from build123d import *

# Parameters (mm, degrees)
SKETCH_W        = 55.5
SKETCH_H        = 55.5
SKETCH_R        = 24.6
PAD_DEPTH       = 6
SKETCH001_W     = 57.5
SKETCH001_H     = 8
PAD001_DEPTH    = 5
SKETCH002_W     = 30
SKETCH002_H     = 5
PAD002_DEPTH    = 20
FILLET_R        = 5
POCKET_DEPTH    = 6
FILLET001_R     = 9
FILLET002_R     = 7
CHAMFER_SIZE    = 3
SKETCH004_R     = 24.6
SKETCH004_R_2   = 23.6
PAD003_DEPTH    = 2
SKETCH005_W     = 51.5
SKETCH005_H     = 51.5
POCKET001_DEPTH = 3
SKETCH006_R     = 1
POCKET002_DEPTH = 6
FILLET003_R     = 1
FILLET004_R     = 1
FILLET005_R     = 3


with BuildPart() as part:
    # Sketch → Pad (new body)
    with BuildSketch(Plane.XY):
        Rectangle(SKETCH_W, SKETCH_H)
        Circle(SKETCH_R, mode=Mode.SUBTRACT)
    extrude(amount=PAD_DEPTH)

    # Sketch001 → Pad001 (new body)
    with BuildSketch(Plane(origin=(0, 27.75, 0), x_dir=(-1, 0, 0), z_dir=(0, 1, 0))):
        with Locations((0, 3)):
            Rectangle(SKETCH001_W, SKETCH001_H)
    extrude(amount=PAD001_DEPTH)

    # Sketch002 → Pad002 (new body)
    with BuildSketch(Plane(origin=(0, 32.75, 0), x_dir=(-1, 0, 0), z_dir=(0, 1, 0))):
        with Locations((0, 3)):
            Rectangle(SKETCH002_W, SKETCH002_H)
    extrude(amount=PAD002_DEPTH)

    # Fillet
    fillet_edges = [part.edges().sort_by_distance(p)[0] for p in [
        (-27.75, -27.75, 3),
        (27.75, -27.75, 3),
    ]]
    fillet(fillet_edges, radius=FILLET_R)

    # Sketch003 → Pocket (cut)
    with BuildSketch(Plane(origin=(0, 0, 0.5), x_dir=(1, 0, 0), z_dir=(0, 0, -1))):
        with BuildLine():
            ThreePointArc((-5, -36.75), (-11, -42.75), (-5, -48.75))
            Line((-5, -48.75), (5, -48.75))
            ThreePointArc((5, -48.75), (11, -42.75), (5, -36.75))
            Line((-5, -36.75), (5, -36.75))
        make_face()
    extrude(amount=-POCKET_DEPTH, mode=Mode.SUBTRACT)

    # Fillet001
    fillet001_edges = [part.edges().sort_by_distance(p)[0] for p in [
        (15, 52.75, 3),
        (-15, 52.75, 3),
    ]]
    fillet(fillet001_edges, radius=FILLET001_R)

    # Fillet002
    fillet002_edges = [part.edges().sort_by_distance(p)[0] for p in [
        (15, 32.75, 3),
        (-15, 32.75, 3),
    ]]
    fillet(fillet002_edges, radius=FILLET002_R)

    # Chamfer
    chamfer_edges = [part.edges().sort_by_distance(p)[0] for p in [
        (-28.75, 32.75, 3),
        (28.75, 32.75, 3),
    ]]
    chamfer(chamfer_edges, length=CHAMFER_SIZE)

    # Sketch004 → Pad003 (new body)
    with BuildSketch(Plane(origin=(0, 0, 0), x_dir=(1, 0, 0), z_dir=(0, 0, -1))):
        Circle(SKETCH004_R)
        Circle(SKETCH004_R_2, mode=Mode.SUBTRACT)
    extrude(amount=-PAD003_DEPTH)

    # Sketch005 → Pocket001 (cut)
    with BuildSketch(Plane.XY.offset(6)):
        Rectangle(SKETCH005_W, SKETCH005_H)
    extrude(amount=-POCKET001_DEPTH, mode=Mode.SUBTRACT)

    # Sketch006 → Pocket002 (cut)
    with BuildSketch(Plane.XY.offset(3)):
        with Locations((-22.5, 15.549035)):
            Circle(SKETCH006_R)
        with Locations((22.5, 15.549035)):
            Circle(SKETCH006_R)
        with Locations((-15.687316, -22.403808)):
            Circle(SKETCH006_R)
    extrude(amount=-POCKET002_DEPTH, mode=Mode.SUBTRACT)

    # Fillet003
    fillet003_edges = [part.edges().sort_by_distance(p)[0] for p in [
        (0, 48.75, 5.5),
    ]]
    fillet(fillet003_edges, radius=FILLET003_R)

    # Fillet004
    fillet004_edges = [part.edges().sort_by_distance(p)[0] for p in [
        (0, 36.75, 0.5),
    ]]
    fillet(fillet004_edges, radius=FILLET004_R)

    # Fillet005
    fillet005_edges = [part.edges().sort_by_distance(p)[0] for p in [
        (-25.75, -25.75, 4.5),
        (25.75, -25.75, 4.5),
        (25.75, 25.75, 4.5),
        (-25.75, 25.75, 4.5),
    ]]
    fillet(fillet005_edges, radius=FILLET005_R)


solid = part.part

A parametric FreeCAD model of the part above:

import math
import FreeCAD as App
import Part
import Sketcher

V = App.Vector
Q = App.Units.Quantity


def edges_at(feature, points):
    """Names of the edges that pass closest to the given points."""
    edges = feature.Shape.Edges
    near = lambda p: min(range(len(edges)), key=lambda i: edges[i].distToShape(Part.Vertex(*p))[0])
    return sorted({f"Edge{near(p) + 1}" for p in points})

doc = App.newDocument("Part")
body = doc.addObject("PartDesign::Body", "Body")

# Sketch on XY plane
sketch1 = doc.addObject("Sketcher::SketchObject", "Sketch")
body.addObject(sketch1)
sketch1.AttachmentSupport = (doc.XY_Plane, [""])
sketch1.MapMode = "FlatFace"
sketch1.addGeometry([
    Part.LineSegment(V(-27.75, 27.75, 0), V(-27.75, -27.75, 0)),  # 0
    Part.LineSegment(V(-27.75, -27.75, 0), V(27.75, -27.75, 0)),  # 1
    Part.LineSegment(V(27.75, -27.75, 0), V(27.75, 27.75, 0)),  # 2
    Part.LineSegment(V(27.75, 27.75, 0), V(-27.75, 27.75, 0)),  # 3
    Part.Circle(V(0, 0, 0), V(0, 0, 1), 24.6),  # 4
], False)
sketch1.addConstraint([
    Sketcher.Constraint("Coincident", 0, 2, 1, 1),
    Sketcher.Constraint("Coincident", 1, 2, 2, 1),
    Sketcher.Constraint("Coincident", 2, 2, 3, 1),
    Sketcher.Constraint("Coincident", 3, 2, 0, 1),
    Sketcher.Constraint("Vertical", 0),
    Sketcher.Constraint("Horizontal", 1),
    Sketcher.Constraint("Vertical", 2),
    Sketcher.Constraint("Horizontal", 3),
    Sketcher.Constraint("Coincident", 4, 3, -1, 1),
    Sketcher.Constraint("Symmetric", 0, 2, 2, 2, -1, 1),
    Sketcher.Constraint("Equal", 3, 0),
    Sketcher.Constraint("Diameter", 4, Q("49.2 mm")),
    Sketcher.Constraint("DistanceX", 1, 1, 1, 2, Q("55.5 mm")),
])
pad1 = doc.addObject("PartDesign::Pad", "Pad")
body.addObject(pad1)
pad1.Profile = sketch1
pad1.Length = 6

# Sketch on XZ plane
sketch2 = doc.addObject("Sketcher::SketchObject", "Sketch001")
body.addObject(sketch2)
sketch2.AttachmentSupport = (doc.XZ_Plane, [""])
sketch2.MapMode = "FlatFace"
sketch2.AttachmentOffset = App.Placement(V(0, 0, -27.75), App.Rotation())
sketch2.addGeometry([
    Part.LineSegment(V(28.75, 7, 0), V(28.75, -1, 0)),
    Part.LineSegment(V(28.75, -1, 0), V(-28.75, -1, 0)),
    Part.LineSegment(V(-28.75, -1, 0), V(-28.75, 7, 0)),
    Part.LineSegment(V(-28.75, 7, 0), V(28.75, 7, 0)),
], False)
sketch2.addConstraint([
    Sketcher.Constraint("Coincident", 0, 2, 1, 1),
    Sketcher.Constraint("Coincident", 1, 2, 2, 1),
    Sketcher.Constraint("Coincident", 2, 2, 3, 1),
    Sketcher.Constraint("Coincident", 3, 2, 0, 1),
    Sketcher.Constraint("Vertical", 0),
    Sketcher.Constraint("Horizontal", 1),
    Sketcher.Constraint("Vertical", 2),
    Sketcher.Constraint("Horizontal", 3),
    Sketcher.Constraint("DistanceY", 0, 2, 0, 1, Q("8 mm")),
    Sketcher.Constraint("DistanceX", 1, 2, 1, 1, Q("57.5 mm")),
    Sketcher.Constraint("DistanceY", 0, 2, -1, 1, Q("1 mm")),
    Sketcher.Constraint("DistanceX", -1, 1, 0, 2, Q("28.75 mm")),
])
pad2 = doc.addObject("PartDesign::Pad", "Pad001")
body.addObject(pad2)
pad2.Profile = sketch2
pad2.Length = 5
pad2.Reversed = True

# Sketch on XZ plane
sketch3 = doc.addObject("Sketcher::SketchObject", "Sketch002")
body.addObject(sketch3)
sketch3.AttachmentSupport = (doc.XZ_Plane, [""])
sketch3.MapMode = "FlatFace"
sketch3.AttachmentOffset = App.Placement(V(0, 0, -32.75), App.Rotation())
sketch3.addGeometry([
    Part.LineSegment(V(15, 5.5, 0), V(15, 0.5, 0)),
    Part.LineSegment(V(15, 0.5, 0), V(-15, 0.5, 0)),
    Part.LineSegment(V(-15, 0.5, 0), V(-15, 5.5, 0)),
    Part.LineSegment(V(-15, 5.5, 0), V(15, 5.5, 0)),
], False)
sketch3.addConstraint([
    Sketcher.Constraint("Coincident", 0, 2, 1, 1),
    Sketcher.Constraint("Coincident", 1, 2, 2, 1),
    Sketcher.Constraint("Coincident", 2, 2, 3, 1),
    Sketcher.Constraint("Coincident", 3, 2, 0, 1),
    Sketcher.Constraint("Vertical", 0),
    Sketcher.Constraint("Horizontal", 1),
    Sketcher.Constraint("Vertical", 2),
    Sketcher.Constraint("Horizontal", 3),
    Sketcher.Constraint("DistanceX", 1, 2, 1, 1, Q("30 mm")),
    Sketcher.Constraint("DistanceY", 0, 2, 0, 1, Q("5 mm")),
    Sketcher.Constraint("DistanceX", -1, 1, 0, 2, Q("15 mm")),
    Sketcher.Constraint("DistanceY", -1, 1, 0, 2, Q("0.5 mm")),
])
pad3 = doc.addObject("PartDesign::Pad", "Pad002")
body.addObject(pad3)
pad3.Profile = sketch3
pad3.Length = 20
pad3.Reversed = True
doc.recompute()

fillet = doc.addObject("PartDesign::Fillet", "Fillet")
body.addObject(fillet)
fillet.Base = (pad3, edges_at(pad3, [(-27.75, -27.75, 3), (27.75, -27.75, 3)]))
fillet.Radius = 5

# Sketch on XY plane
sketch4 = doc.addObject("Sketcher::SketchObject", "Sketch003")
body.addObject(sketch4)
sketch4.AttachmentSupport = (doc.XY_Plane, [""])
sketch4.MapMode = "FlatFace"
sketch4.AttachmentOffset = App.Placement(V(0, 0, 0.5), App.Rotation())
sketch4.addGeometry([
    Part.ArcOfCircle(Part.Circle(V(-5, 42.75, 0), V(0, 0, 1), 6), math.radians(90), math.radians(270)),
    Part.LineSegment(V(-5, 48.75, 0), V(5, 48.75, 0)),
    Part.ArcOfCircle(Part.Circle(V(5, 42.75, 0), V(0, 0, 1), 6), math.radians(-90), math.radians(90)),
    Part.LineSegment(V(5, 36.75, 0), V(-5, 36.75, 0)),
], False)
sketch4.addConstraint([
    Sketcher.Constraint("Tangent", 0, 1, 1, 1),
    Sketcher.Constraint("Tangent", 1, 2, 2, 2),
    Sketcher.Constraint("Tangent", 2, 1, 3, 1),
    Sketcher.Constraint("Tangent", 3, 2, 0, 2),
    Sketcher.Constraint("Horizontal", 1),
    Sketcher.Constraint("Horizontal", 3),
    Sketcher.Constraint("Radius", 0, Q("6 mm")),
    Sketcher.Constraint("DistanceX", 1, 1, 1, 2, Q("10 mm")),
    Sketcher.Constraint("DistanceX", 0, 3, -1, 1, Q("5 mm")),
    Sketcher.Constraint("DistanceY", -1, 1, 0, 3, Q("42.75 mm")),
])
pocket1 = doc.addObject("PartDesign::Pocket", "Pocket")
body.addObject(pocket1)
pocket1.Profile = sketch4
pocket1.Length = 6
pocket1.Reversed = True
doc.recompute()

fillet2 = doc.addObject("PartDesign::Fillet", "Fillet001")
body.addObject(fillet2)
fillet2.Base = (pocket1, edges_at(pocket1, [(15, 52.75, 3), (-15, 52.75, 3)]))
fillet2.Radius = 9
doc.recompute()

fillet3 = doc.addObject("PartDesign::Fillet", "Fillet002")
body.addObject(fillet3)
fillet3.Base = (fillet2, edges_at(fillet2, [(15, 32.75, 3), (-15, 32.75, 3)]))
fillet3.Radius = 7
doc.recompute()

chamfer = doc.addObject("PartDesign::Chamfer", "Chamfer")
body.addObject(chamfer)
chamfer.Base = (fillet3, edges_at(fillet3, [(-28.75, 32.75, 3), (28.75, 32.75, 3)]))
chamfer.Size = 3

# Sketch on XY plane
sketch5 = doc.addObject("Sketcher::SketchObject", "Sketch004")
body.addObject(sketch5)
sketch5.AttachmentSupport = (doc.XY_Plane, [""])
sketch5.MapMode = "FlatFace"
sketch5.addGeometry([
    Part.Circle(V(0, 0, 0), V(0, 0, 1), 24.6),
    Part.Circle(V(0, 0, 0), V(0, 0, 1), 23.6),
], False)
sketch5.addConstraint([
    Sketcher.Constraint("Coincident", 0, 3, -1, 1),
    Sketcher.Constraint("Coincident", 1, 3, -1, 1),
    Sketcher.Constraint("Diameter", 0, Q("49.2 mm")),
    Sketcher.Constraint("Diameter", 1, Q("47.2 mm")),
])
pad4 = doc.addObject("PartDesign::Pad", "Pad003")
body.addObject(pad4)
pad4.Profile = sketch5
pad4.Length = 2

# Sketch on XY plane
sketch6 = doc.addObject("Sketcher::SketchObject", "Sketch005")
body.addObject(sketch6)
sketch6.AttachmentSupport = (doc.XY_Plane, [""])
sketch6.MapMode = "FlatFace"
sketch6.AttachmentOffset = App.Placement(V(0, 0, 6), App.Rotation())
sketch6.addGeometry([
    Part.LineSegment(V(-25.75, 25.75, 0), V(-25.75, -25.75, 0)),
    Part.LineSegment(V(-25.75, -25.75, 0), V(25.75, -25.75, 0)),
    Part.LineSegment(V(25.75, -25.75, 0), V(25.75, 25.75, 0)),
    Part.LineSegment(V(25.75, 25.75, 0), V(-25.75, 25.75, 0)),
], False)
sketch6.addConstraint([
    Sketcher.Constraint("Coincident", 0, 2, 1, 1),
    Sketcher.Constraint("Coincident", 1, 2, 2, 1),
    Sketcher.Constraint("Coincident", 2, 2, 3, 1),
    Sketcher.Constraint("Coincident", 3, 2, 0, 1),
    Sketcher.Constraint("Vertical", 0),
    Sketcher.Constraint("Horizontal", 1),
    Sketcher.Constraint("Vertical", 2),
    Sketcher.Constraint("Horizontal", 3),
    Sketcher.Constraint("Symmetric", 0, 2, 2, 2, -1, 1),
    Sketcher.Constraint("Equal", 3, 0),
    Sketcher.Constraint("DistanceX", 1, 1, 1, 2, Q("51.5 mm")),
])
pocket2 = doc.addObject("PartDesign::Pocket", "Pocket001")
body.addObject(pocket2)
pocket2.Profile = sketch6
pocket2.Length = 3

# Sketch on XY plane
sketch7 = doc.addObject("Sketcher::SketchObject", "Sketch006")
body.addObject(sketch7)
sketch7.AttachmentSupport = (doc.XY_Plane, [""])
sketch7.MapMode = "FlatFace"
sketch7.AttachmentOffset = App.Placement(V(0, 0, 3), App.Rotation())
sketch7.addGeometry([
    Part.Circle(V(-22.5, 15.549035, 0), V(0, 0, 1), 1),
    Part.Circle(V(22.5, 15.549035, 0), V(0, 0, 1), 1),
    Part.Circle(V(-15.687316, -22.403808, 0), V(0, 0, 1), 1),
], False)
sketch7.addConstraint([
    Sketcher.Constraint("Equal", 0, 1),
    Sketcher.Constraint("Equal", 1, 2),
    Sketcher.Constraint("Symmetric", 0, 3, 1, 3, -2),
    Sketcher.Constraint("Diameter", 0, Q("2 mm")),
    Sketcher.Constraint("DistanceX", 0, 3, 1, 3, Q("45 mm")),
    Sketcher.Constraint("DistanceY", 2, 3, -1, 1, Q("22.403808 mm")),
    Sketcher.Constraint("DistanceY", -1, 1, 0, 3, Q("15.549035 mm")),
    Sketcher.Constraint("DistanceX", 2, 3, -1, 1, Q("15.687316 mm")),
])
pocket3 = doc.addObject("PartDesign::Pocket", "Pocket002")
body.addObject(pocket3)
pocket3.Profile = sketch7
pocket3.Length = 6
doc.recompute()

fillet4 = doc.addObject("PartDesign::Fillet", "Fillet003")
body.addObject(fillet4)
fillet4.Base = (pocket3, edges_at(pocket3, [(0, 48.75, 5.5)]))
fillet4.Radius = 1
doc.recompute()

fillet5 = doc.addObject("PartDesign::Fillet", "Fillet004")
body.addObject(fillet5)
fillet5.Base = (fillet4, edges_at(fillet4, [(0, 36.75, 0.5)]))
fillet5.Radius = 1
doc.recompute()

fillet6 = doc.addObject("PartDesign::Fillet", "Fillet005")
body.addObject(fillet6)
fillet6.Base = (fillet5, edges_at(fillet5, [
    (-25.75, -25.75, 4.5),
    (25.75, -25.75, 4.5),
    (25.75, 25.75, 4.5),
    (-25.75, 25.75, 4.5),
]))
fillet6.Radius = 3

doc.recompute()
